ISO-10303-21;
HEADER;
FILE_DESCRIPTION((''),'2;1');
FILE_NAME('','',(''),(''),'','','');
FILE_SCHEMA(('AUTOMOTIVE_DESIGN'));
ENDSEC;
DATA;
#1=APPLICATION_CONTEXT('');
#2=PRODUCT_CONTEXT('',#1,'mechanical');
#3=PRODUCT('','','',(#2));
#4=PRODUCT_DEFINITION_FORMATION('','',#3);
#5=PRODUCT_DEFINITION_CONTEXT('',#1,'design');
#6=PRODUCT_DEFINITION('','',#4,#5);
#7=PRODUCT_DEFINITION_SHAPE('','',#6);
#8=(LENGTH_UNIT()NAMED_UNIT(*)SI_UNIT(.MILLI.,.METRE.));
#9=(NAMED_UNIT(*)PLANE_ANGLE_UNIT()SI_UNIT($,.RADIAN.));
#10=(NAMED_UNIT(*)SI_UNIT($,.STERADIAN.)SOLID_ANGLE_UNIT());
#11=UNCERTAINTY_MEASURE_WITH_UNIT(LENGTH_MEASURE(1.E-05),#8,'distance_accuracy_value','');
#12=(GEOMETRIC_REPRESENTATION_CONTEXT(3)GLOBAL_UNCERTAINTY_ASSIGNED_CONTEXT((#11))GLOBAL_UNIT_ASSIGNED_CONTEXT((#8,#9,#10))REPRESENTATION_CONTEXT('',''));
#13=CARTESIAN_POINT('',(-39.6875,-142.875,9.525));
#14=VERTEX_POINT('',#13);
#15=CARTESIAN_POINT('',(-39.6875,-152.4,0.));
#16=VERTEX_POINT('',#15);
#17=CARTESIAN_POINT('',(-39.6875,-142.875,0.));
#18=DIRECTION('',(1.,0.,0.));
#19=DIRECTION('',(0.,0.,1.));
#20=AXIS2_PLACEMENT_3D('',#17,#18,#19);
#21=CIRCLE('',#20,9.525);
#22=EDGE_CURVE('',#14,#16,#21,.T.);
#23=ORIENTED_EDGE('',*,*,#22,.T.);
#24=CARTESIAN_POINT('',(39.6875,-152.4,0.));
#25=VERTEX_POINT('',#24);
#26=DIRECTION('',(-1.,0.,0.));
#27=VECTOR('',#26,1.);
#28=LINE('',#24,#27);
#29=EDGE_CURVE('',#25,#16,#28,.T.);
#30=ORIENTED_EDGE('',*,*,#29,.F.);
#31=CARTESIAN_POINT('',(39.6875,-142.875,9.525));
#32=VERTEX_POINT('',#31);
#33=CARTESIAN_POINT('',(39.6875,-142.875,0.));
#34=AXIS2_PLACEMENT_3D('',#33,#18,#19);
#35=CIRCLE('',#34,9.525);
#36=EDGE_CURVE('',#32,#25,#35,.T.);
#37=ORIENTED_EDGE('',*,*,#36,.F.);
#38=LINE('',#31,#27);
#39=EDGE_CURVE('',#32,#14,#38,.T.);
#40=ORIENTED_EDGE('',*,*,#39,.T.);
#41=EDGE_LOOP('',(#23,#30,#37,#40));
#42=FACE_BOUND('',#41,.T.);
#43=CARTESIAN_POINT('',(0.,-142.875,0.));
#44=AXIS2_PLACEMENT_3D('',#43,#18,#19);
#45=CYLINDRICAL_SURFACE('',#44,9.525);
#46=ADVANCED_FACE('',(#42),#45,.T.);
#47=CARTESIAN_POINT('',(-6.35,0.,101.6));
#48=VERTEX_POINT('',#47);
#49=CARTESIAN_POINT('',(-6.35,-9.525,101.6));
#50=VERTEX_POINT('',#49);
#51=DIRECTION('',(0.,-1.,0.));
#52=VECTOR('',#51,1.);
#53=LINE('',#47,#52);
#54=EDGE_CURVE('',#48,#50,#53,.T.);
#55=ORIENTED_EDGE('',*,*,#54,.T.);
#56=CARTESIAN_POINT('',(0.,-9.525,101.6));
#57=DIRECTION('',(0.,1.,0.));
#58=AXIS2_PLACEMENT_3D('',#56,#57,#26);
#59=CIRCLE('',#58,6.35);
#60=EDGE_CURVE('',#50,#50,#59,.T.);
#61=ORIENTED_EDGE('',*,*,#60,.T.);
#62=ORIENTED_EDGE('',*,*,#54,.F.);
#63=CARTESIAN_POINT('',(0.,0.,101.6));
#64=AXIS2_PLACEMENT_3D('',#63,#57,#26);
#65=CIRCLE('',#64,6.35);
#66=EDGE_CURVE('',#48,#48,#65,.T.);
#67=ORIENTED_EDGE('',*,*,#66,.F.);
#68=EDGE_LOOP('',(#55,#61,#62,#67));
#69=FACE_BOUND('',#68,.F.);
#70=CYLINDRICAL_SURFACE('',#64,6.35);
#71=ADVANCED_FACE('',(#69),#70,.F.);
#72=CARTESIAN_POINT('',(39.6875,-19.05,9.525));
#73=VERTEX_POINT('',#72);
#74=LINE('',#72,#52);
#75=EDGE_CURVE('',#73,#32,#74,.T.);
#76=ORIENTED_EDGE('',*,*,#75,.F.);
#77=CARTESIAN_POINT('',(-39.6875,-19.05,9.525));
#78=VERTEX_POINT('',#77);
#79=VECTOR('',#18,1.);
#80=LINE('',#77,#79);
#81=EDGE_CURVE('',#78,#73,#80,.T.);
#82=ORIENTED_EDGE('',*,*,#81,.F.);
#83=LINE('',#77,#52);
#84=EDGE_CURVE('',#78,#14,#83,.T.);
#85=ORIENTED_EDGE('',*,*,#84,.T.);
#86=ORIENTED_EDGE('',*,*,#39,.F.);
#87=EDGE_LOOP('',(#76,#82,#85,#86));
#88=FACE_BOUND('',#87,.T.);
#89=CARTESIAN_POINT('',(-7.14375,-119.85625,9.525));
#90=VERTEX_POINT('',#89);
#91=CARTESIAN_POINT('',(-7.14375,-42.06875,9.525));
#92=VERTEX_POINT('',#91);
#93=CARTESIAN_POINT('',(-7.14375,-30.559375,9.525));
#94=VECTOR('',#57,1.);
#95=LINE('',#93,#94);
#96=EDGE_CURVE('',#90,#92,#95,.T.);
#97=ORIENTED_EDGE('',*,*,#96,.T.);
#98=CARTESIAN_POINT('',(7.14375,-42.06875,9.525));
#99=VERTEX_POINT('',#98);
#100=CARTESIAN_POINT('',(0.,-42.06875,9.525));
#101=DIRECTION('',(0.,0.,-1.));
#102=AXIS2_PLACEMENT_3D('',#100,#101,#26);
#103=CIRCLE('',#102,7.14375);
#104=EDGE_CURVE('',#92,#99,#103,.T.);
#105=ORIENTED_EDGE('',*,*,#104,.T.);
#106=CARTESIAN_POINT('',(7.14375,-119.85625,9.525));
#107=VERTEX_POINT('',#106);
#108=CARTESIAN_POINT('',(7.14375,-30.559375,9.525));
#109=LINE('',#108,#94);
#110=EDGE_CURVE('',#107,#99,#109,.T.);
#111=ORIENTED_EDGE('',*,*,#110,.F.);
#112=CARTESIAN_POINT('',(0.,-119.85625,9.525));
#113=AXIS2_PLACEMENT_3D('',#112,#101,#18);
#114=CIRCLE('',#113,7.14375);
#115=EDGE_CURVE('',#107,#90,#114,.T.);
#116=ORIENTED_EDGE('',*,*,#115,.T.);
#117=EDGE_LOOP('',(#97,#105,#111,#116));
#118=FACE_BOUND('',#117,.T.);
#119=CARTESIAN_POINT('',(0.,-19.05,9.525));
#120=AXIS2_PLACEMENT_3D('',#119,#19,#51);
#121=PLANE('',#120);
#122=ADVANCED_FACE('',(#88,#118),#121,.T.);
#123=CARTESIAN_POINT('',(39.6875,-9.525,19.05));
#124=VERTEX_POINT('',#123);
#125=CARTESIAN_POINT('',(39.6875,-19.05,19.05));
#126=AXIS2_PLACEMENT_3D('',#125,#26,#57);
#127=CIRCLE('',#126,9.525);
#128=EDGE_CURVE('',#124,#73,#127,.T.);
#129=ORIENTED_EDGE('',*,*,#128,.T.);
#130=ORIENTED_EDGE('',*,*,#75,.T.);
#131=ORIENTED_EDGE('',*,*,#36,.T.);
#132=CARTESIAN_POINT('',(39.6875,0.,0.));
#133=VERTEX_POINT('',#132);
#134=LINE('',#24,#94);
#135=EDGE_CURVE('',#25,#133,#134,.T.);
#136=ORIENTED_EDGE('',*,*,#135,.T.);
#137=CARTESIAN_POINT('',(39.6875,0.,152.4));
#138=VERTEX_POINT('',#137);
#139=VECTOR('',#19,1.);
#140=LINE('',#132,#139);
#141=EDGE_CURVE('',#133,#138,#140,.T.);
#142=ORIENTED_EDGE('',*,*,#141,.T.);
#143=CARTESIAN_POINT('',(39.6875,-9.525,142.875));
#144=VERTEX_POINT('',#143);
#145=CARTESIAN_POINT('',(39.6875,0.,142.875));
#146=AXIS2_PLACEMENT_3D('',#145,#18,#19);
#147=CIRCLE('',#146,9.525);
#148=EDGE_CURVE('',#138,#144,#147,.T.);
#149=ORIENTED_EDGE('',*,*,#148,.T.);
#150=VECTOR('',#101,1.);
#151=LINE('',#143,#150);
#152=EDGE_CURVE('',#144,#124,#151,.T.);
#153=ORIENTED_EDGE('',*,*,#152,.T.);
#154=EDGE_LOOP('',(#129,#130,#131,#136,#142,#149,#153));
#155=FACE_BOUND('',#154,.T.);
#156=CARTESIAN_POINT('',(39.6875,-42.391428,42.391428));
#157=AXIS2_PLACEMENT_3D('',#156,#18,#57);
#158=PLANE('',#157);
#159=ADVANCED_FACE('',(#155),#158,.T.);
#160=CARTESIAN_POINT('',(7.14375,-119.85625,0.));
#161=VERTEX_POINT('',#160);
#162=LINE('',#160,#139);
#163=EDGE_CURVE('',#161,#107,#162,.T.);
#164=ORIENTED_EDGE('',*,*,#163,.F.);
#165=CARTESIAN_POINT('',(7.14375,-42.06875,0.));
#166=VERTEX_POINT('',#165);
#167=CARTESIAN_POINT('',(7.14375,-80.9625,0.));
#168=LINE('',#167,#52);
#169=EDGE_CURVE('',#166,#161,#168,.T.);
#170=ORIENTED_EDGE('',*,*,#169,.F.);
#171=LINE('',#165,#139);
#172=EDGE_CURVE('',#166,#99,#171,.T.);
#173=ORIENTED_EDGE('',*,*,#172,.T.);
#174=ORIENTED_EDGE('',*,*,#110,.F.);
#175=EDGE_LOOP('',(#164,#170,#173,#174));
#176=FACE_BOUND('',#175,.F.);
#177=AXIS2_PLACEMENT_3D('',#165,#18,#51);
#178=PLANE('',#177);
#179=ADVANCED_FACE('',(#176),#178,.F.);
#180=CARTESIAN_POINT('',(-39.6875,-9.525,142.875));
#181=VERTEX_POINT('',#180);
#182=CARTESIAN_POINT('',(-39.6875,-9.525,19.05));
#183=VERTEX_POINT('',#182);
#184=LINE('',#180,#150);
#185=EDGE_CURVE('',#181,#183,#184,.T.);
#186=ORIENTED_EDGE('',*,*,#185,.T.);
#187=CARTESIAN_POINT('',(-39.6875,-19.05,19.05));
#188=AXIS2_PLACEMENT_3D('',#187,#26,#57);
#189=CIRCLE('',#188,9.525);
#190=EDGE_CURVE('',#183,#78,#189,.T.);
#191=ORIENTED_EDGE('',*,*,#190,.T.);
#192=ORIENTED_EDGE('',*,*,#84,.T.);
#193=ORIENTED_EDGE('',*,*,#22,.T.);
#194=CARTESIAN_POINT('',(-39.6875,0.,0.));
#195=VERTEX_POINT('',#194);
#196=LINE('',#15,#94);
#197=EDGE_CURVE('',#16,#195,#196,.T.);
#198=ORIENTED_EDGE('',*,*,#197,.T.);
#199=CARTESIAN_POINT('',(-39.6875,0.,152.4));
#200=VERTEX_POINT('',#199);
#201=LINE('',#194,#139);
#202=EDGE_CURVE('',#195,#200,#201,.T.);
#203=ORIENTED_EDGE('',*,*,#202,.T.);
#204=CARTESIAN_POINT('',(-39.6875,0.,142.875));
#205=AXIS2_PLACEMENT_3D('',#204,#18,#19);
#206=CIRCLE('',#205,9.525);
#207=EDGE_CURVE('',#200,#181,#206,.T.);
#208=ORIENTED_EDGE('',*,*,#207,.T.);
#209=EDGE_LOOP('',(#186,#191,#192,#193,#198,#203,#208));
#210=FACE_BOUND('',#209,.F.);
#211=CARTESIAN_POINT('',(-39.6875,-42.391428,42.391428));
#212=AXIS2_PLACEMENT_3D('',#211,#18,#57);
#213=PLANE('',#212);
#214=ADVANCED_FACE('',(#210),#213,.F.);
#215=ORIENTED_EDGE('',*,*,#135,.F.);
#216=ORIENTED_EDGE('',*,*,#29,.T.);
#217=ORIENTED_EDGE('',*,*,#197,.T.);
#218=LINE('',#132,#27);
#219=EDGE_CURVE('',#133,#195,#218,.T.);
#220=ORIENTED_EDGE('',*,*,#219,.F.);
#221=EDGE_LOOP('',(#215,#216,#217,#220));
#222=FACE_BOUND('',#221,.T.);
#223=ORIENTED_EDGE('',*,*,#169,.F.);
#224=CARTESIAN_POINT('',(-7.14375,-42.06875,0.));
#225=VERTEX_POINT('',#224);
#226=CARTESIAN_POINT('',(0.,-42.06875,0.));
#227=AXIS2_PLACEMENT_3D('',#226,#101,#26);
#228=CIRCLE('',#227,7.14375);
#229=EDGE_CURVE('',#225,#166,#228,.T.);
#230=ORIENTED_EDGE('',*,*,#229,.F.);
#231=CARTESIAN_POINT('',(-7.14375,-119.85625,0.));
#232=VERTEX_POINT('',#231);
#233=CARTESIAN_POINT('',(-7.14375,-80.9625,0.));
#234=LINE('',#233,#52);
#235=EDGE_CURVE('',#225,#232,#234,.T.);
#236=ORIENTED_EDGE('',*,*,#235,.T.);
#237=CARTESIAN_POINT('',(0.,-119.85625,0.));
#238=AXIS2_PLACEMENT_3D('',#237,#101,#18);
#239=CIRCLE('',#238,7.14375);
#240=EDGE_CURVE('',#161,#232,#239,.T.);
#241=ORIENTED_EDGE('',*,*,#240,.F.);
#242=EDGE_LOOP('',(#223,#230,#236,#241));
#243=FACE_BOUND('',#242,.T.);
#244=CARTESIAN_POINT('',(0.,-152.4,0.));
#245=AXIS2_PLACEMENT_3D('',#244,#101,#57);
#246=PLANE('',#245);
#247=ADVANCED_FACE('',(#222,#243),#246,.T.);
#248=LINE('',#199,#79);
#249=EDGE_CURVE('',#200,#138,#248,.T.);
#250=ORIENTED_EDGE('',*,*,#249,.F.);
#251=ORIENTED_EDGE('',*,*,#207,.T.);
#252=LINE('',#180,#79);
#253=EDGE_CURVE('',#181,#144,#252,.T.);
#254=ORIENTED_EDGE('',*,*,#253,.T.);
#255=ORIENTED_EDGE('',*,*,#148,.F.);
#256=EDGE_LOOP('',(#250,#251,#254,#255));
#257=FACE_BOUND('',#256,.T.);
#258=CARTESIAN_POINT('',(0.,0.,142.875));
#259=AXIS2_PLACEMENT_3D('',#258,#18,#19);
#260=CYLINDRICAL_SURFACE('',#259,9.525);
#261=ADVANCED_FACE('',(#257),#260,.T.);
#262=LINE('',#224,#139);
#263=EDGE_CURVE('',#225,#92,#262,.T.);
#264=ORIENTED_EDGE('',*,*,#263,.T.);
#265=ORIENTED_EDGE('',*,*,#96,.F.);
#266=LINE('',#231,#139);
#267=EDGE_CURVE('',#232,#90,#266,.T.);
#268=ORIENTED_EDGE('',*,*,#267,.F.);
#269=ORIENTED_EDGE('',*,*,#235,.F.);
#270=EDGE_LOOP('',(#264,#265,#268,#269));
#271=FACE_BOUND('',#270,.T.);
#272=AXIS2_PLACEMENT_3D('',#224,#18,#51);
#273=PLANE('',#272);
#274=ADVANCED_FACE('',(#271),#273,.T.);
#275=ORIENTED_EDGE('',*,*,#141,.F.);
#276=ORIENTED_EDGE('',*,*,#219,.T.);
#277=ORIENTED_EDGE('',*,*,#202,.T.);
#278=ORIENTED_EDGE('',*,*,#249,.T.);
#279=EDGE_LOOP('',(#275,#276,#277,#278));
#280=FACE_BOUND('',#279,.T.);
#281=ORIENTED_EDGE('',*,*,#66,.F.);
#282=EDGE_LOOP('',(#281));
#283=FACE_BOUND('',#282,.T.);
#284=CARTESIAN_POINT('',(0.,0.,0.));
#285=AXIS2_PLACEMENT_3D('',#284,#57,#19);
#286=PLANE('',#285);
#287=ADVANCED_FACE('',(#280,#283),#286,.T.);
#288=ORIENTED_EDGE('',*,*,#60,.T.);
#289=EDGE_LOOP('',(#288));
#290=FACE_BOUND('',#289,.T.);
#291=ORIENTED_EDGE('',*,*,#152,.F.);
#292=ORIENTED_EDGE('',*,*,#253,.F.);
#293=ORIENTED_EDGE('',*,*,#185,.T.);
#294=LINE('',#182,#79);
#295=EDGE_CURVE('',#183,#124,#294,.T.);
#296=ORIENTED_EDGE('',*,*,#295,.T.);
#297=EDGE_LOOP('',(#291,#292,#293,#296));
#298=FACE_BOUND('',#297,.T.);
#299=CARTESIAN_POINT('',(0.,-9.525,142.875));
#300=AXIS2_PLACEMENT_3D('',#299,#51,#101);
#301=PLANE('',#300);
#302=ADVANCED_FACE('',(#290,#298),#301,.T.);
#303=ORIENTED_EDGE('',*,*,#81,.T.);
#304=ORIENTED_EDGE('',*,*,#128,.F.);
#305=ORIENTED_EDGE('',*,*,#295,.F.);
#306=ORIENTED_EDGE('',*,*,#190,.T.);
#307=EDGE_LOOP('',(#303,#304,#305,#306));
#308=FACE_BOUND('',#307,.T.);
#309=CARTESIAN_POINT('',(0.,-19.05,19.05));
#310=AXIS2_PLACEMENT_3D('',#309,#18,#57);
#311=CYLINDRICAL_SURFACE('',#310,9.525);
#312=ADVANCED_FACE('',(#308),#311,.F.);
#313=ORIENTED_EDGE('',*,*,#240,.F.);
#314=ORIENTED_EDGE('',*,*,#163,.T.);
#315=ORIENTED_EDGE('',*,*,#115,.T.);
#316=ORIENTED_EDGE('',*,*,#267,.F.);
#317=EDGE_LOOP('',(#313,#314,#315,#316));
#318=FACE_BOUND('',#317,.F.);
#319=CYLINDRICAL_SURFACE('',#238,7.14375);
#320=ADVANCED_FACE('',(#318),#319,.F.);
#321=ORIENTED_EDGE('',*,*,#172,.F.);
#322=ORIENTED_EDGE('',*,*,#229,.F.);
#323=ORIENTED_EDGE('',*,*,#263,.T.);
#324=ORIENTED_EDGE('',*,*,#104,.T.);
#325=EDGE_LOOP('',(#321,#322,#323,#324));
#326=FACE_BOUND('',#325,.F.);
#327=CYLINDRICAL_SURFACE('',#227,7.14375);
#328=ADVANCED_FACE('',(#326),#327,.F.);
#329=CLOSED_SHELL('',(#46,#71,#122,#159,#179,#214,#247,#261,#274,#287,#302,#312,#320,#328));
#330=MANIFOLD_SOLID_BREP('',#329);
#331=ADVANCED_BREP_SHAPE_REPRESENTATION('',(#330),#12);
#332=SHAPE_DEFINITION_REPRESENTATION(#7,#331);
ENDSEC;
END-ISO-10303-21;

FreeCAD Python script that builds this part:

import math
import FreeCAD as App
import Part
import Sketcher
from FreeCAD import Vector
Q = App.Units.Quantity

doc = App.newDocument("Part")
body = doc.addObject("PartDesign::Body", "Body")

sketch1 = body.newObject("Sketcher::SketchObject", "Sketch")
sketch1.AttachmentSupport = (doc.getObject("YZ_Plane"), [""])
sketch1.MapMode = "FlatFace"
sketch1.addGeometry([
    Part.LineSegment(Vector(0, 0, 0), Vector(0, 152, 0)),
    Part.ArcOfCircle(Part.Circle(Vector(0, 143, 0), Vector(0, 0, 1), 10), math.radians(90), math.radians(180)),
    Part.LineSegment(Vector(-10, 143, 0), Vector(-10, 19, 0)),
    Part.ArcOfCircle(Part.Circle(Vector(-19, 19, 0), Vector(0, 0, 1), 10), math.radians(-90), math.radians(0)),
    Part.LineSegment(Vector(-19, 10, 0), Vector(-143, 10, 0)),
    Part.ArcOfCircle(Part.Circle(Vector(-143, 0, 0), Vector(0, 0, 1), 10), math.radians(90), math.radians(180)),
    Part.LineSegment(Vector(-152, 0, 0), Vector(0, 0, 0)),
], False)
sketch1.addConstraint([
    Sketcher.Constraint("Coincident", 0, 2, 1, 1),
    Sketcher.Constraint("Tangent", 1, 2, 2, 1),
    Sketcher.Constraint("Tangent", 2, 2, 3, 2),
    Sketcher.Constraint("Tangent", 3, 1, 4, 1),
    Sketcher.Constraint("Tangent", 4, 2, 5, 1),
    Sketcher.Constraint("Coincident", 5, 2, 6, 1),
    Sketcher.Constraint("Coincident", 6, 2, 0, 1),
    Sketcher.Constraint("Vertical", 0),
    Sketcher.Constraint("Vertical", 2),
    Sketcher.Constraint("Horizontal", 4),
    Sketcher.Constraint("Horizontal", 6),
    Sketcher.Constraint("Coincident", 6, 2, -1, 1),
    Sketcher.Constraint("Equal", 1, 3),
    Sketcher.Constraint("Equal", 3, 5),
    Sketcher.Constraint("PointOnObject", 1, 3, -2),
    Sketcher.Constraint("PointOnObject", 5, 3, -1),
    Sketcher.Constraint("Equal", 6, 0),
    Sketcher.Constraint("DistanceX", 6, 1, 6, 2, Q("6 in")),
    Sketcher.Constraint("Radius", 1, Q("0.375 in")),
])
pad1 = body.newObject("PartDesign::Pad", "Pad")
pad1.Profile = sketch1
pad1.Length = Q("3.125 in")
pad1.Midplane = True

sketch2 = body.newObject("Sketcher::SketchObject", "Sketch001")
sketch2.AttachmentSupport = (doc.getObject("XZ_Plane"), [""])
sketch2.MapMode = "FlatFace"
sketch2.addGeometry(Part.Circle(Vector(0, 102, 0), Vector(0, 0, 1), 6), False)
sketch2.addConstraint([
    Sketcher.Constraint("PointOnObject", 0, 3, -2),
    Sketcher.Constraint("Diameter", 0, Q("0.5 in")),
    Sketcher.Constraint("DistanceY", -1, 1, 0, 3, Q("4 in")),
])
pocket1 = body.newObject("PartDesign::Pocket", "Pocket")
pocket1.Profile = sketch2
pocket1.Length = Q("1 in")
pocket1.Reversed = True

sketch3 = body.newObject("Sketcher::SketchObject", "Sketch002")
sketch3.AttachmentSupport = (doc.getObject("XY_Plane"), [""])
sketch3.MapMode = "FlatFace"
sketch3.addGeometry([
    Part.LineSegment(Vector(-7, -120, 0), Vector(-7, -42, 0)),
    Part.ArcOfCircle(Part.Circle(Vector(0, -42, 0), Vector(0, 0, 1), 7), math.radians(0), math.radians(180)),
    Part.LineSegment(Vector(7, -42, 0), Vector(7, -120, 0)),
    Part.ArcOfCircle(Part.Circle(Vector(0, -120, 0), Vector(0, 0, 1), 7), math.radians(180), math.radians(360)),
], False)
sketch3.addConstraint([
    Sketcher.Constraint("Tangent", 0, 2, 1, 2),
    Sketcher.Constraint("Tangent", 1, 1, 2, 1),
    Sketcher.Constraint("Tangent", 2, 2, 3, 2),
    Sketcher.Constraint("Tangent", 3, 1, 0, 1),
    Sketcher.Constraint("Vertical", 0),
    Sketcher.Constraint("Vertical", 2),
    Sketcher.Constraint("PointOnObject", 1, 3, -2),
    Sketcher.Constraint("Radius", 1, Q("0.28125 in")),
    Sketcher.Constraint("DistanceY", 0, 1, 0, 2, Q("3.0625 in")),
    Sketcher.Constraint("DistanceY", 1, 3, -1, 1, Q("1.65625 in")),
])
pocket2 = body.newObject("PartDesign::Pocket", "Pocket001")
pocket2.Profile = sketch3
pocket2.Length = Q("1 in")
pocket2.Reversed = True

doc.recompute()
